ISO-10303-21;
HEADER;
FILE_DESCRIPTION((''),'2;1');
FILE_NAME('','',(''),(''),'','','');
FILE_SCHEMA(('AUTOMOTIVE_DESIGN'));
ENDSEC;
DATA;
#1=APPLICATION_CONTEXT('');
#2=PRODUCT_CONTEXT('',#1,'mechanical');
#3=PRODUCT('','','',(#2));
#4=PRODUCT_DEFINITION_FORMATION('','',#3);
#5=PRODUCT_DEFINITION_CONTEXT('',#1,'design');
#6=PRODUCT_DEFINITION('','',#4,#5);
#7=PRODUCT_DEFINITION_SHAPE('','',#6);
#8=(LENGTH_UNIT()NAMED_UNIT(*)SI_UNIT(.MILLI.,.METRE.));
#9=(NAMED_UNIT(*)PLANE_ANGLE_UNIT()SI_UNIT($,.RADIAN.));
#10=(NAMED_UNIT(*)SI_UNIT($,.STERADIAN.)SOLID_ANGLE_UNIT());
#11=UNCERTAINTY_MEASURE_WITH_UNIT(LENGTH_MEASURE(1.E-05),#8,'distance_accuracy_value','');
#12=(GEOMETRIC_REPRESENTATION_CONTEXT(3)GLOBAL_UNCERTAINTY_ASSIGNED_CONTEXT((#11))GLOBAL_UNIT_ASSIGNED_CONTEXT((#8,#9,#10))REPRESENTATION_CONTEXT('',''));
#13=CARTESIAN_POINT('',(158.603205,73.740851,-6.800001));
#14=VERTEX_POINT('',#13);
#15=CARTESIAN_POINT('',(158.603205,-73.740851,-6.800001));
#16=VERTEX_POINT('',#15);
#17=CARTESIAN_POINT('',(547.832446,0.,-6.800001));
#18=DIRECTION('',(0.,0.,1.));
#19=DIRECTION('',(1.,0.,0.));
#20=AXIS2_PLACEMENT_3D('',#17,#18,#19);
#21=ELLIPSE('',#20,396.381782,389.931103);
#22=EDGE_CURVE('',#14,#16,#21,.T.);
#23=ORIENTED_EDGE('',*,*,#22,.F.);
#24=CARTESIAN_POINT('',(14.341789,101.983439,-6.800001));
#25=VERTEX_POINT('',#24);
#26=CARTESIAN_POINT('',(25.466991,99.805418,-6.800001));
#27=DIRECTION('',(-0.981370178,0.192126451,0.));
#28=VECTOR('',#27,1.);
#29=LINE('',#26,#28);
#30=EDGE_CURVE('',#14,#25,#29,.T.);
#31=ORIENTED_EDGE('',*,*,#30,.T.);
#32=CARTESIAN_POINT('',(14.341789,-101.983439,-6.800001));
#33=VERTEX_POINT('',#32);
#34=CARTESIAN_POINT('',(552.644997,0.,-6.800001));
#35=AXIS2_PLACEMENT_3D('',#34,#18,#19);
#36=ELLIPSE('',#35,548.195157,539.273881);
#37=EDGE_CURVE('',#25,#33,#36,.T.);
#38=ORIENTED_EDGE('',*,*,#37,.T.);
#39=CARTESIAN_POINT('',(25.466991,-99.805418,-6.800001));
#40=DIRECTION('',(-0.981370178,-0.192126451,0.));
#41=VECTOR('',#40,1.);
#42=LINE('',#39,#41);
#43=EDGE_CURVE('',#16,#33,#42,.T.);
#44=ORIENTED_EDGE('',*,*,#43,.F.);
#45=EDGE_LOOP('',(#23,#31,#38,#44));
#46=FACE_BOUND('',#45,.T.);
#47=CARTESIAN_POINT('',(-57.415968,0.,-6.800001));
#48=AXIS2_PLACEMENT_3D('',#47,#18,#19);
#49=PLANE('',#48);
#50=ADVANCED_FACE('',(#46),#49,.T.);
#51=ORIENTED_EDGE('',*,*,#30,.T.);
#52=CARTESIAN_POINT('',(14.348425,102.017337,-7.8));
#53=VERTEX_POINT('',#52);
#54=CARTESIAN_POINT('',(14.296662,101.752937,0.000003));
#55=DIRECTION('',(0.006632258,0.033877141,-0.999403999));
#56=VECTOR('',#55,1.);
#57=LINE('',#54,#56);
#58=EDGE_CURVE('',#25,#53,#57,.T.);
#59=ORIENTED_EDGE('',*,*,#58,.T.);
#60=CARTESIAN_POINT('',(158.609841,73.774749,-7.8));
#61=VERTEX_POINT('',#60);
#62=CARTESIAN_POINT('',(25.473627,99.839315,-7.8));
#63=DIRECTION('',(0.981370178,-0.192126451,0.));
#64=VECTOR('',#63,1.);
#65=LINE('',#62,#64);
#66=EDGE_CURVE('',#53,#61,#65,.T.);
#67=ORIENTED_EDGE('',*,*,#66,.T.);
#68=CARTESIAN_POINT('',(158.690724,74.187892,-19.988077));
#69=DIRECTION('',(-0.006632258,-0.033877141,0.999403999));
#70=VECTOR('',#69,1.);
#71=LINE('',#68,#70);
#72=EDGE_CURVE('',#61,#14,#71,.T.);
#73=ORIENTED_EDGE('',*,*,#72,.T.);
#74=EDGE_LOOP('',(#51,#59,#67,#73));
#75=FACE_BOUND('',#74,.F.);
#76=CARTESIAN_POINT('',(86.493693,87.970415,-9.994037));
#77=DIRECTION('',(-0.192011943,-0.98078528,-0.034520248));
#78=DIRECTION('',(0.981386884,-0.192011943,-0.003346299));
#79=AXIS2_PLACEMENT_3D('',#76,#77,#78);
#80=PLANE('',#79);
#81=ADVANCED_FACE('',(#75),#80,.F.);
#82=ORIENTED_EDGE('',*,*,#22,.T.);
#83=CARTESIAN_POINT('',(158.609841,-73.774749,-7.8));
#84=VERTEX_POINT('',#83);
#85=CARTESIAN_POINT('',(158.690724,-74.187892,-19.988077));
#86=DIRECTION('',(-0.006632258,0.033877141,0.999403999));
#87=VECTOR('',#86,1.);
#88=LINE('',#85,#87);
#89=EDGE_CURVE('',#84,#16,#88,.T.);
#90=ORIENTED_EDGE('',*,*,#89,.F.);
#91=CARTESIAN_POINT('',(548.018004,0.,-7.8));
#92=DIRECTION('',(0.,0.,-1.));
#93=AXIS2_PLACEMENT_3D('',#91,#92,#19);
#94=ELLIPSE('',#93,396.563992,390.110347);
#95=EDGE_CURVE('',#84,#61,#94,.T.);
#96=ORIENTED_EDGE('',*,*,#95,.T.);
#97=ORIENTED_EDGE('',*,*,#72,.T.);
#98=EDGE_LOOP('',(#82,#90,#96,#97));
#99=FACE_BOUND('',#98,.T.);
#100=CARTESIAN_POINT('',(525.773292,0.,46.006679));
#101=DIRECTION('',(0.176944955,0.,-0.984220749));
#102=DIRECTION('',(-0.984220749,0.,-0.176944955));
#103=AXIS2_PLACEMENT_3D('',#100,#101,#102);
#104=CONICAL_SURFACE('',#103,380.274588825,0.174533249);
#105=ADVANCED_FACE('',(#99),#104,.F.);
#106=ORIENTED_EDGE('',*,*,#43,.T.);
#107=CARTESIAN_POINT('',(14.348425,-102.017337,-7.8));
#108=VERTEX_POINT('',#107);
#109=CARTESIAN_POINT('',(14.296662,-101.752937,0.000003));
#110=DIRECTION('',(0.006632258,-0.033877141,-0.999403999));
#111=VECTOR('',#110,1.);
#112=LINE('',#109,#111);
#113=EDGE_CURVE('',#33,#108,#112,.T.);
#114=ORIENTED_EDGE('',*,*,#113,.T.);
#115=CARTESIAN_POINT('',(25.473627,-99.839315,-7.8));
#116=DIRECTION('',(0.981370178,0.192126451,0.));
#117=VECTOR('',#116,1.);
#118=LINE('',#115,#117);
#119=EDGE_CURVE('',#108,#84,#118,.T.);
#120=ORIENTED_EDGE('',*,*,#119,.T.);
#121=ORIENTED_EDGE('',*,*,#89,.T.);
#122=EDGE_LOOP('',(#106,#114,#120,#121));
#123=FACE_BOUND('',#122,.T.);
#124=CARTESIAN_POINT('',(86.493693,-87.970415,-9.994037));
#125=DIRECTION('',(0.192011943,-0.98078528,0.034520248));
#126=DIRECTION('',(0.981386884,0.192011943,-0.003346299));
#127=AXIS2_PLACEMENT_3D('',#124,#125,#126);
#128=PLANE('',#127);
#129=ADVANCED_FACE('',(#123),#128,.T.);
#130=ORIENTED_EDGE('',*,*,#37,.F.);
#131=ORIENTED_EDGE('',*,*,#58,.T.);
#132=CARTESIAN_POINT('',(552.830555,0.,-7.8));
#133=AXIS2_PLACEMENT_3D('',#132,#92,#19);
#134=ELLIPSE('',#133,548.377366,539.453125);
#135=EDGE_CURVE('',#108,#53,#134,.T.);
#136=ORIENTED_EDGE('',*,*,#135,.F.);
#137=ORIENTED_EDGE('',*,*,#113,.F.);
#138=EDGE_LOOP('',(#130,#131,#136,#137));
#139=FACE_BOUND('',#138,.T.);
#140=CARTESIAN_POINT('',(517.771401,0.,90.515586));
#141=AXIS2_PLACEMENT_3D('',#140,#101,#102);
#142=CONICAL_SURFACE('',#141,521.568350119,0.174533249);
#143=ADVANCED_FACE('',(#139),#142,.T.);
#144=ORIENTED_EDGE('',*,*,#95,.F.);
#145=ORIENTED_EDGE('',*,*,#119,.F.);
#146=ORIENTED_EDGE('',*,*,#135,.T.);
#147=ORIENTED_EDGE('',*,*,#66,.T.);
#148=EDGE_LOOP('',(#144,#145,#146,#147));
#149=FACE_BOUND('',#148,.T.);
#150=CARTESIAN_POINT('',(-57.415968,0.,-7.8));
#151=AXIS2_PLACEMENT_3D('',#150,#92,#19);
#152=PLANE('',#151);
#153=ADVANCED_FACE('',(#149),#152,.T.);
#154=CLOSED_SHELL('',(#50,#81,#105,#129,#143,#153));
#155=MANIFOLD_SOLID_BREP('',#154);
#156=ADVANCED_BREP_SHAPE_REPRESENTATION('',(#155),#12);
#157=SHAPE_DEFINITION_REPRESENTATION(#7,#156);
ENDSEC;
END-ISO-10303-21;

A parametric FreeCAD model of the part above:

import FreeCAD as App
import Part
import Sketcher
from FreeCAD import Vector

doc = App.newDocument("Part")
body = doc.addObject("PartDesign::Body", "Body")

sketch1 = doc.addObject("Sketcher::SketchObject", "Sketch")
body.addObject(sketch1)
sketch1.AttachmentSupport = (doc.XZ_Plane, [""])
sketch1.MapMode = "FlatFace"
sketch1.addGeometry(Part.LineSegment(Vector(151.432185, -1.281103, 0), Vector(4.433009, -1.773302, 0)), False)
sketch1.addGeometry(Part.LineSegment(Vector(4.433009, -1.773302, 0), Vector(4.499975, -21.77319, 0)), False)
sketch1.addGeometry(Part.LineSegment(Vector(4.499975, -21.77319, 0), Vector(151.499151, -21.280991, 0)), False)
sketch1.addGeometry(Part.LineSegment(Vector(151.499151, -21.280991, 0), Vector(151.432185, -1.281103, 0)), False)
sketch1.addGeometry(Part.LineSegment(Vector(525.773292, 46.006679, 0), Vector(517.771401, 90.515586, 0)), True)
sketch1.addConstraint(Sketcher.Constraint("Coincident", 0, 2, 1, 1))
sketch1.addConstraint(Sketcher.Constraint("Coincident", 1, 2, 2, 1))
sketch1.addConstraint(Sketcher.Constraint("Coincident", 2, 2, 3, 1))
sketch1.addConstraint(Sketcher.Constraint("Coincident", 3, 2, 0, 1))
sketch1.addConstraint(Sketcher.Constraint("Perpendicular", 0, 1))
sketch1.addConstraint(Sketcher.Constraint("Perpendicular", 1, 2))
sketch1.addConstraint(Sketcher.Constraint("Perpendicular", 2, 3))
sketch1.addConstraint(Sketcher.Constraint("Distance", 0, 147.0))
sketch1.addConstraint(Sketcher.Constraint("Distance", 1, 20.0))
sketch1.addConstraint(Sketcher.Constraint("DistanceY", 0, 2, -1, 1, 1.773302))
sketch1.addConstraint(Sketcher.Constraint("DistanceX", -1, 1, 4, 2, 517.771401))
sketch1.addConstraint(Sketcher.Constraint("DistanceY", 1, 2, 2, 2, 0.492199))
sketch1.addConstraint(Sketcher.Constraint("DistanceX", -1, 1, 0, 2, 4.433009))
sketch1.addConstraint(Sketcher.Constraint("DistanceX", -1, 1, 4, 1, 525.773292))
sketch1.addConstraint(Sketcher.Constraint("DistanceY", -1, 1, 4, 1, 46.006679))
sketch1.addConstraint(Sketcher.Constraint("DistanceY", 3, 2, 4, 2, 91.796689))
revolution = doc.addObject("PartDesign::Revolution", "Revolution")
body.addObject(revolution)
revolution.Profile = sketch1
revolution.ReferenceAxis = (sketch1, ["Axis0"])
revolution.Angle = 11.25

sketch2 = doc.addObject("Sketcher::SketchObject", "Sketch001")
body.addObject(sketch2)
sketch2.AttachmentSupport = (doc.XZ_Plane, [""])
sketch2.MapMode = "FlatFace"
sketch2.addGeometry(Part.LineSegment(Vector(151.432185, -1.281103, 0), Vector(4.433009, -1.773302, 0)), False)
sketch2.addGeometry(Part.LineSegment(Vector(4.433009, -1.773302, 0), Vector(4.499975, -21.77319, 0)), False)
sketch2.addGeometry(Part.LineSegment(Vector(4.499975, -21.77319, 0), Vector(151.499151, -21.280991, 0)), False)
sketch2.addGeometry(Part.LineSegment(Vector(151.499151, -21.280991, 0), Vector(151.432185, -1.281103, 0)), False)
sketch2.addGeometry(Part.LineSegment(Vector(517.771401, 90.515586, 0), Vector(525.773292, 46.006679, 0)), True)
sketch2.addConstraint(Sketcher.Constraint("Coincident", 0, 2, 1, 1))
sketch2.addConstraint(Sketcher.Constraint("Coincident", 1, 2, 2, 1))
sketch2.addConstraint(Sketcher.Constraint("Coincident", 2, 2, 3, 1))
sketch2.addConstraint(Sketcher.Constraint("Coincident", 3, 2, 0, 1))
sketch2.addConstraint(Sketcher.Constraint("Perpendicular", 0, 1))
sketch2.addConstraint(Sketcher.Constraint("Perpendicular", 1, 2))
sketch2.addConstraint(Sketcher.Constraint("Perpendicular", 2, 3))
sketch2.addConstraint(Sketcher.Constraint("Distance", 0, 147.0))
sketch2.addConstraint(Sketcher.Constraint("Distance", 1, 20.0))
sketch2.addConstraint(Sketcher.Constraint("DistanceY", 0, 2, -1, 1, 1.773302))
sketch2.addConstraint(Sketcher.Constraint("DistanceX", -1, 1, 4, 1, 517.771401))
sketch2.addConstraint(Sketcher.Constraint("DistanceY", 1, 2, 2, 2, 0.492199))
sketch2.addConstraint(Sketcher.Constraint("DistanceX", -1, 1, 0, 2, 4.433009))
sketch2.addConstraint(Sketcher.Constraint("DistanceX", -1, 1, 4, 2, 525.773292))
sketch2.addConstraint(Sketcher.Constraint("DistanceY", -1, 1, 4, 2, 46.006679))
sketch2.addConstraint(Sketcher.Constraint("DistanceY", 3, 2, 4, 1, 91.796689))
revolution2 = doc.addObject("PartDesign::Revolution", "Revolution001")
body.addObject(revolution2)
revolution2.Profile = sketch2
revolution2.ReferenceAxis = (sketch2, ["Axis0"])
revolution2.Angle = 11.25

sketch3 = doc.addObject("Sketcher::SketchObject", "Sketch002")
body.addObject(sketch3)
sketch3.AttachmentSupport = (doc.XZ_Plane, [""])
sketch3.MapMode = "FlatFace"
sketch3.addGeometry(Part.LineSegment(Vector(-57.415968, 44.281525, 0), Vector(-57.415968, -6.800001, 0)), False)
sketch3.addGeometry(Part.LineSegment(Vector(-57.415968, -6.800001, 0), Vector(231.39112, -6.800001, 0)), False)
sketch3.addGeometry(Part.LineSegment(Vector(231.39112, -6.800001, 0), Vector(231.39112, 44.281525, 0)), False)
sketch3.addGeometry(Part.LineSegment(Vector(231.39112, 44.281525, 0), Vector(-57.415968, 44.281525, 0)), False)
sketch3.addGeometry(Part.LineSegment(Vector(-57.415968, -7.8, 0), Vector(-57.415968, -85.895803, 0)), False)
sketch3.addGeometry(Part.LineSegment(Vector(-57.415968, -85.895803, 0), Vector(231.39112, -85.895803, 0)), False)
sketch3.addGeometry(Part.LineSegment(Vector(231.39112, -85.895803, 0), Vector(231.39112, -7.8, 0)), False)
sketch3.addGeometry(Part.LineSegment(Vector(231.39112, -7.8, 0), Vector(-57.415968, -7.8, 0)), False)
sketch3.addConstraint(Sketcher.Constraint("Coincident", 0, 2, 1, 1))
sketch3.addConstraint(Sketcher.Constraint("Coincident", 1, 2, 2, 1))
sketch3.addConstraint(Sketcher.Constraint("Coincident", 2, 2, 3, 1))
sketch3.addConstraint(Sketcher.Constraint("Coincident", 3, 2, 0, 1))
sketch3.addConstraint(Sketcher.Constraint("Coincident", 4, 2, 5, 1))
sketch3.addConstraint(Sketcher.Constraint("Coincident", 5, 2, 6, 1))
sketch3.addConstraint(Sketcher.Constraint("Coincident", 6, 2, 7, 1))
sketch3.addConstraint(Sketcher.Constraint("Coincident", 7, 2, 4, 1))
sketch3.addConstraint(Sketcher.Constraint("Vertical", 0))
sketch3.addConstraint(Sketcher.Constraint("Horizontal", 1))
sketch3.addConstraint(Sketcher.Constraint("Vertical", 2))
sketch3.addConstraint(Sketcher.Constraint("Horizontal", 3))
sketch3.addConstraint(Sketcher.Constraint("Vertical", 4))
sketch3.addConstraint(Sketcher.Constraint("Horizontal", 5))
sketch3.addConstraint(Sketcher.Constraint("Vertical", 6))
sketch3.addConstraint(Sketcher.Constraint("Horizontal", 7))
sketch3.addConstraint(Sketcher.Constraint("Vertical", 3, 2, 4, 2))
sketch3.addConstraint(Sketcher.Constraint("Vertical", 2, 2, 5, 2))
sketch3.addConstraint(Sketcher.Constraint("DistanceY", 6, 2, 1, 2, 0.999999))
sketch3.addConstraint(Sketcher.Constraint("DistanceY", 0, 2, -1, 1, 6.800001))
sketch3.addConstraint(Sketcher.Constraint("DistanceX", 1, 1, 1, 2, 288.807087))
sketch3.addConstraint(Sketcher.Constraint("DistanceY", 0, 2, 0, 1, 51.081525))
sketch3.addConstraint(Sketcher.Constraint("DistanceY", 4, 2, 4, 1, 78.095803))
sketch3.addConstraint(Sketcher.Constraint("DistanceX", -1, 1, 1, 2, 231.39112))
pocket1 = doc.addObject("PartDesign::Pocket", "Pocket")
body.addObject(pocket1)
pocket1.Profile = sketch3
pocket1.Length = 238
pocket1.Midplane = True

doc.recompute()
